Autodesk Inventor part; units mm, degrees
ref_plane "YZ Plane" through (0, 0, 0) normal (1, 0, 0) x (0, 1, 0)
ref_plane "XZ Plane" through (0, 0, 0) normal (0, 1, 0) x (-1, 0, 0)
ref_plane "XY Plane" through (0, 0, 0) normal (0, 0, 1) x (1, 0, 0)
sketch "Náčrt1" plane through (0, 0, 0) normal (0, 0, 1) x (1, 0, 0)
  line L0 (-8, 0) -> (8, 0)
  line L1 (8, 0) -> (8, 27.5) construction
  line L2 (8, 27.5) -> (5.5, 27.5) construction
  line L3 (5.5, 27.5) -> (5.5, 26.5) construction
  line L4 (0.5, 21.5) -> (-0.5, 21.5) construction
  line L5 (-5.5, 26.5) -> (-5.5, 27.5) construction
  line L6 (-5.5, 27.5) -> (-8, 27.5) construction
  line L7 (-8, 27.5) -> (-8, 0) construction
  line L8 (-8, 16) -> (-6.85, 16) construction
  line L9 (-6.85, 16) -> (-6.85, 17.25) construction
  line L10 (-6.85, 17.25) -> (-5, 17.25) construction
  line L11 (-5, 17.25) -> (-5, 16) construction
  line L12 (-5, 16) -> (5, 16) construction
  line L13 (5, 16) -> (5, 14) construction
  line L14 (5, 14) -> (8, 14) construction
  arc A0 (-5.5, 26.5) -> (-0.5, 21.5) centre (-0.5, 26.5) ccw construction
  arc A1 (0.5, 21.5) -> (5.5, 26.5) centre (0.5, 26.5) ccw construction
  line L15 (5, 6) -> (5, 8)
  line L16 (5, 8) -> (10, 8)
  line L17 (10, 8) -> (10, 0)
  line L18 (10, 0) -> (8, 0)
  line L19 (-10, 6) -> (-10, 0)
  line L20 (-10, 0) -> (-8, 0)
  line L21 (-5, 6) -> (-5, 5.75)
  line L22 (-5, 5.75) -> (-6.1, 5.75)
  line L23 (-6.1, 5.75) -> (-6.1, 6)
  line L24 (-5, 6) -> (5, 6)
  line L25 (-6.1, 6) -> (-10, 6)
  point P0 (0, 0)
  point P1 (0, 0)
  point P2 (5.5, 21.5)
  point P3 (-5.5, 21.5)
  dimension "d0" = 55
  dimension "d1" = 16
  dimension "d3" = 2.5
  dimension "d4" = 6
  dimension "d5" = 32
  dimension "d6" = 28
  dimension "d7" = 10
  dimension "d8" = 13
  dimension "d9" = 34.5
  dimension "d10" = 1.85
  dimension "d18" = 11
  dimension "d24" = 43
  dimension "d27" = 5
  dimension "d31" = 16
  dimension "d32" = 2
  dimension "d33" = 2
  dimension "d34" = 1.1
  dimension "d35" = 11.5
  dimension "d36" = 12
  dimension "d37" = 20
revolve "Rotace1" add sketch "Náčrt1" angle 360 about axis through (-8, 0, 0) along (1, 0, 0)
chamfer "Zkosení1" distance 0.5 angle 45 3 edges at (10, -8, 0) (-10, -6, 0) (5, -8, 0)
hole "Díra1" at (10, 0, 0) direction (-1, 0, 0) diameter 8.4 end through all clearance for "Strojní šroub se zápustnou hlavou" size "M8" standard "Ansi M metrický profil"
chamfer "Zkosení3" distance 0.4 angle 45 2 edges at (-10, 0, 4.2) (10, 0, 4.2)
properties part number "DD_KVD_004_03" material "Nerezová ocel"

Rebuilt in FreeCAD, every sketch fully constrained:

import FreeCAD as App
import Part
import Sketcher

V = App.Vector
Q = App.Units.Quantity


def edges_at(feature, points):
    """Names of the edges that pass closest to the given points."""
    edges = feature.Shape.Edges
    near = lambda p: min(range(len(edges)), key=lambda i: edges[i].distToShape(Part.Vertex(*p))[0])
    return sorted({f"Edge{near(p) + 1}" for p in points})


def add_polygon(sketch, points):
    """Adds a closed chain of lines whose ends are joined by coincident constraints."""
    first, n = sketch.GeometryCount, len(points)
    for a, b in zip(points, points[1:] + points[:1]):
        sketch.addGeometry(Part.LineSegment(App.Vector(*a, 0), App.Vector(*b, 0)), False)
    for i in range(n):
        sketch.addConstraint(Sketcher.Constraint("Coincident", first + i, 2, first + (i + 1) % n, 1))

doc = App.newDocument("Part")
params = doc.addObject("Spreadsheet::Sheet", "Params")
for row, (alias, value) in enumerate([
    ("sketch1_width", "20 mm"),
    ("sketch1_width2", "5 mm"),
    ("sketch1_width3", "10 mm"),
    ("sketch1_height", "2 mm"),
    ("sketch1_height2", "6 mm"),
    ("revolution_angle", "360 deg"),
    ("chamfer_size", "0.5 mm"),
    ("sketch2_diameter", "8.4 mm"),
    ("hole_diameter", "8.4 mm"),
    ("chamfer2_size", "0.4 mm"),
], start=1):
    params.set(f"A{row}", alias)
    params.set(f"B{row}", "=" + value)
    params.setAlias(f"B{row}", alias)

body = doc.addObject("PartDesign::Body", "Body")

# Sketch on XY plane
sketch1 = body.newObject("Sketcher::SketchObject", "Sketch")
sketch1.AttachmentSupport = (doc.getObject("XY_Plane"), [""])
sketch1.MapMode = "FlatFace"
add_polygon(sketch1, [(-10, 0), (10, 0), (10, 8), (5, 8), (5, 6), (-5, 6), (-5, 5.75), (-6.1, 5.75), (-6.1, 6), (-10, 6)])  # lines 0-9
sketch1.addConstraint(Sketcher.Constraint("Horizontal", 0))
sketch1.addConstraint(Sketcher.Constraint("Vertical", 1))
sketch1.addConstraint(Sketcher.Constraint("Horizontal", 2))
sketch1.addConstraint(Sketcher.Constraint("Vertical", 3))
sketch1.addConstraint(Sketcher.Constraint("Horizontal", 4))
sketch1.addConstraint(Sketcher.Constraint("Vertical", 5))
sketch1.addConstraint(Sketcher.Constraint("Horizontal", 6))
sketch1.addConstraint(Sketcher.Constraint("Vertical", 7))
sketch1.addConstraint(Sketcher.Constraint("Horizontal", 8))
sketch1.addConstraint(Sketcher.Constraint("Vertical", 9))
sketch1.addConstraint(Sketcher.Constraint("Symmetric", 0, 2, 9, 2, -1, 1))
sketch1.addConstraint(Sketcher.Constraint("Horizontal", 4, 2, 7, 2))
sketch1.addConstraint(Sketcher.Constraint("DistanceX", 0, 1, 0, 2, Q("20 mm")))
sketch1.addConstraint(Sketcher.Constraint("DistanceX", 2, 2, 2, 1, Q("5 mm")))
sketch1.addConstraint(Sketcher.Constraint("DistanceX", 4, 2, 4, 1, Q("10 mm")))
sketch1.addConstraint(Sketcher.Constraint("DistanceY", 3, 2, 3, 1, Q("2 mm")))
sketch1.addConstraint(Sketcher.Constraint("DistanceY", 9, 2, 9, 1, Q("6 mm")))
sketch1.addConstraint(Sketcher.Constraint("DistanceX", 6, 2, 6, 1, Q("1.1 mm")))
sketch1.addConstraint(Sketcher.Constraint("DistanceY", 5, 2, 5, 1, Q("0.25 mm")))
sketch1.setExpression("Constraints[22]", "Params.sketch1_width")
sketch1.setExpression("Constraints[23]", "Params.sketch1_width2")
sketch1.setExpression("Constraints[24]", "Params.sketch1_width3")
sketch1.setExpression("Constraints[25]", "Params.sketch1_height")
sketch1.setExpression("Constraints[26]", "Params.sketch1_height2")
revolution = body.newObject("PartDesign::Revolution", "Revolution")
revolution.Profile = sketch1
revolution.ReferenceAxis = (sketch1, ["H_Axis"])
revolution.setExpression("Angle", "Params.revolution_angle")
doc.recompute()

chamfer = body.newObject("PartDesign::Chamfer", "Chamfer")
chamfer.Base = (revolution, edges_at(revolution, [(10, -8, 0), (-10, -6, 0), (5, -8, 0)]))
chamfer.setExpression("Size", "Params.chamfer_size")

# Sketch on YZ plane
sketch2 = body.newObject("Sketcher::SketchObject", "Sketch001")
sketch2.AttachmentSupport = (doc.getObject("YZ_Plane"), [""])
sketch2.MapMode = "FlatFace"
sketch2.AttachmentOffset = App.Placement(V(0, 0, 10), App.Rotation())
sketch2.addGeometry(Part.Circle(V(0, 0, 0), V(0, 0, 1), 4.2), False)
sketch2.addConstraint(Sketcher.Constraint("Coincident", 0, 3, -1, 1))
sketch2.addConstraint(Sketcher.Constraint("Diameter", 0, Q("8.4 mm")))
sketch2.setExpression("Constraints[1]", "Params.sketch2_diameter")
doc.recompute()
hole = body.newObject("PartDesign::Hole", "Hole")
hole.Profile = sketch2
hole.ThreadType = "None"
hole.setExpression("Diameter", "Params.hole_diameter")
hole.DepthType = "ThroughAll"
doc.recompute()

chamfer2 = body.newObject("PartDesign::Chamfer", "Chamfer001")
chamfer2.Base = (hole, edges_at(hole, [(-10, 0, 4.2), (10, 0, 4.2)]))
chamfer2.setExpression("Size", "Params.chamfer2_size")

doc.recompute()
